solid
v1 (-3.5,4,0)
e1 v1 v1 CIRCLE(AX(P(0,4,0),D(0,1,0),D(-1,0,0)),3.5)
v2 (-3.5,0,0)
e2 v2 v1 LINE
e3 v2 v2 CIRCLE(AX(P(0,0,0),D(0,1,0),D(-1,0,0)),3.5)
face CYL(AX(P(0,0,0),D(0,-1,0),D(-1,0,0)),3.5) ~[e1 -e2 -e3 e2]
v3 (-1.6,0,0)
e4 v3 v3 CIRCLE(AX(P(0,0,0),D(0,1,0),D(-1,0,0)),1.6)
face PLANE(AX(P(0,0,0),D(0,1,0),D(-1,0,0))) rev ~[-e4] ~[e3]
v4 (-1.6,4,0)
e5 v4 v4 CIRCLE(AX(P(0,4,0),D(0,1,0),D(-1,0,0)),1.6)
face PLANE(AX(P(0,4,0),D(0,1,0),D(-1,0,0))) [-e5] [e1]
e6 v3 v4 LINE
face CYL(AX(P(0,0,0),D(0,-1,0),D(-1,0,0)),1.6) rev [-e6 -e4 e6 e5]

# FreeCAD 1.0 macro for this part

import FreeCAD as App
import Part
import Sketcher
from FreeCAD import Vector
Q = App.Units.Quantity

doc = App.newDocument("Part")
params = doc.addObject("Spreadsheet::Sheet", "Params")
for row, (alias, value) in enumerate([
    ("sketch1_diameter", "7 mm"),
    ("sketch1_diameter2", "3.2 mm"),
    ("pad1_length", "4 mm"),
], start=1):
    params.set(f"A{row}", alias)
    params.set(f"B{row}", "=" + value)
    params.setAlias(f"B{row}", alias)

body = doc.addObject("PartDesign::Body", "Body")

sketch1 = body.newObject("Sketcher::SketchObject", "Sketch")
sketch1.AttachmentSupport = (doc.getObject("XZ_Plane"), [""])
sketch1.MapMode = "FlatFace"
sketch1.addGeometry([
    Part.Circle(Vector(0, 0, 0), Vector(0, 0, 1), 3.5),
    Part.Circle(Vector(0, 0, 0), Vector(0, 0, 1), 1.6),
], False)
sketch1.addConstraint([
    Sketcher.Constraint("Coincident", 0, 3, -1, 1),
    Sketcher.Constraint("Coincident", 1, 3, -1, 1),
    Sketcher.Constraint("Diameter", 0, Q("7 mm")),
    Sketcher.Constraint("Diameter", 1, Q("3.2 mm")),
])
sketch1.setExpression("Constraints[2]", "Params.sketch1_diameter")
sketch1.setExpression("Constraints[3]", "Params.sketch1_diameter2")
pad1 = body.newObject("PartDesign::Pad", "Pad")
pad1.Profile = sketch1
pad1.setExpression("Length", "Params.pad1_length")
pad1.Reversed = True

doc.recompute()
